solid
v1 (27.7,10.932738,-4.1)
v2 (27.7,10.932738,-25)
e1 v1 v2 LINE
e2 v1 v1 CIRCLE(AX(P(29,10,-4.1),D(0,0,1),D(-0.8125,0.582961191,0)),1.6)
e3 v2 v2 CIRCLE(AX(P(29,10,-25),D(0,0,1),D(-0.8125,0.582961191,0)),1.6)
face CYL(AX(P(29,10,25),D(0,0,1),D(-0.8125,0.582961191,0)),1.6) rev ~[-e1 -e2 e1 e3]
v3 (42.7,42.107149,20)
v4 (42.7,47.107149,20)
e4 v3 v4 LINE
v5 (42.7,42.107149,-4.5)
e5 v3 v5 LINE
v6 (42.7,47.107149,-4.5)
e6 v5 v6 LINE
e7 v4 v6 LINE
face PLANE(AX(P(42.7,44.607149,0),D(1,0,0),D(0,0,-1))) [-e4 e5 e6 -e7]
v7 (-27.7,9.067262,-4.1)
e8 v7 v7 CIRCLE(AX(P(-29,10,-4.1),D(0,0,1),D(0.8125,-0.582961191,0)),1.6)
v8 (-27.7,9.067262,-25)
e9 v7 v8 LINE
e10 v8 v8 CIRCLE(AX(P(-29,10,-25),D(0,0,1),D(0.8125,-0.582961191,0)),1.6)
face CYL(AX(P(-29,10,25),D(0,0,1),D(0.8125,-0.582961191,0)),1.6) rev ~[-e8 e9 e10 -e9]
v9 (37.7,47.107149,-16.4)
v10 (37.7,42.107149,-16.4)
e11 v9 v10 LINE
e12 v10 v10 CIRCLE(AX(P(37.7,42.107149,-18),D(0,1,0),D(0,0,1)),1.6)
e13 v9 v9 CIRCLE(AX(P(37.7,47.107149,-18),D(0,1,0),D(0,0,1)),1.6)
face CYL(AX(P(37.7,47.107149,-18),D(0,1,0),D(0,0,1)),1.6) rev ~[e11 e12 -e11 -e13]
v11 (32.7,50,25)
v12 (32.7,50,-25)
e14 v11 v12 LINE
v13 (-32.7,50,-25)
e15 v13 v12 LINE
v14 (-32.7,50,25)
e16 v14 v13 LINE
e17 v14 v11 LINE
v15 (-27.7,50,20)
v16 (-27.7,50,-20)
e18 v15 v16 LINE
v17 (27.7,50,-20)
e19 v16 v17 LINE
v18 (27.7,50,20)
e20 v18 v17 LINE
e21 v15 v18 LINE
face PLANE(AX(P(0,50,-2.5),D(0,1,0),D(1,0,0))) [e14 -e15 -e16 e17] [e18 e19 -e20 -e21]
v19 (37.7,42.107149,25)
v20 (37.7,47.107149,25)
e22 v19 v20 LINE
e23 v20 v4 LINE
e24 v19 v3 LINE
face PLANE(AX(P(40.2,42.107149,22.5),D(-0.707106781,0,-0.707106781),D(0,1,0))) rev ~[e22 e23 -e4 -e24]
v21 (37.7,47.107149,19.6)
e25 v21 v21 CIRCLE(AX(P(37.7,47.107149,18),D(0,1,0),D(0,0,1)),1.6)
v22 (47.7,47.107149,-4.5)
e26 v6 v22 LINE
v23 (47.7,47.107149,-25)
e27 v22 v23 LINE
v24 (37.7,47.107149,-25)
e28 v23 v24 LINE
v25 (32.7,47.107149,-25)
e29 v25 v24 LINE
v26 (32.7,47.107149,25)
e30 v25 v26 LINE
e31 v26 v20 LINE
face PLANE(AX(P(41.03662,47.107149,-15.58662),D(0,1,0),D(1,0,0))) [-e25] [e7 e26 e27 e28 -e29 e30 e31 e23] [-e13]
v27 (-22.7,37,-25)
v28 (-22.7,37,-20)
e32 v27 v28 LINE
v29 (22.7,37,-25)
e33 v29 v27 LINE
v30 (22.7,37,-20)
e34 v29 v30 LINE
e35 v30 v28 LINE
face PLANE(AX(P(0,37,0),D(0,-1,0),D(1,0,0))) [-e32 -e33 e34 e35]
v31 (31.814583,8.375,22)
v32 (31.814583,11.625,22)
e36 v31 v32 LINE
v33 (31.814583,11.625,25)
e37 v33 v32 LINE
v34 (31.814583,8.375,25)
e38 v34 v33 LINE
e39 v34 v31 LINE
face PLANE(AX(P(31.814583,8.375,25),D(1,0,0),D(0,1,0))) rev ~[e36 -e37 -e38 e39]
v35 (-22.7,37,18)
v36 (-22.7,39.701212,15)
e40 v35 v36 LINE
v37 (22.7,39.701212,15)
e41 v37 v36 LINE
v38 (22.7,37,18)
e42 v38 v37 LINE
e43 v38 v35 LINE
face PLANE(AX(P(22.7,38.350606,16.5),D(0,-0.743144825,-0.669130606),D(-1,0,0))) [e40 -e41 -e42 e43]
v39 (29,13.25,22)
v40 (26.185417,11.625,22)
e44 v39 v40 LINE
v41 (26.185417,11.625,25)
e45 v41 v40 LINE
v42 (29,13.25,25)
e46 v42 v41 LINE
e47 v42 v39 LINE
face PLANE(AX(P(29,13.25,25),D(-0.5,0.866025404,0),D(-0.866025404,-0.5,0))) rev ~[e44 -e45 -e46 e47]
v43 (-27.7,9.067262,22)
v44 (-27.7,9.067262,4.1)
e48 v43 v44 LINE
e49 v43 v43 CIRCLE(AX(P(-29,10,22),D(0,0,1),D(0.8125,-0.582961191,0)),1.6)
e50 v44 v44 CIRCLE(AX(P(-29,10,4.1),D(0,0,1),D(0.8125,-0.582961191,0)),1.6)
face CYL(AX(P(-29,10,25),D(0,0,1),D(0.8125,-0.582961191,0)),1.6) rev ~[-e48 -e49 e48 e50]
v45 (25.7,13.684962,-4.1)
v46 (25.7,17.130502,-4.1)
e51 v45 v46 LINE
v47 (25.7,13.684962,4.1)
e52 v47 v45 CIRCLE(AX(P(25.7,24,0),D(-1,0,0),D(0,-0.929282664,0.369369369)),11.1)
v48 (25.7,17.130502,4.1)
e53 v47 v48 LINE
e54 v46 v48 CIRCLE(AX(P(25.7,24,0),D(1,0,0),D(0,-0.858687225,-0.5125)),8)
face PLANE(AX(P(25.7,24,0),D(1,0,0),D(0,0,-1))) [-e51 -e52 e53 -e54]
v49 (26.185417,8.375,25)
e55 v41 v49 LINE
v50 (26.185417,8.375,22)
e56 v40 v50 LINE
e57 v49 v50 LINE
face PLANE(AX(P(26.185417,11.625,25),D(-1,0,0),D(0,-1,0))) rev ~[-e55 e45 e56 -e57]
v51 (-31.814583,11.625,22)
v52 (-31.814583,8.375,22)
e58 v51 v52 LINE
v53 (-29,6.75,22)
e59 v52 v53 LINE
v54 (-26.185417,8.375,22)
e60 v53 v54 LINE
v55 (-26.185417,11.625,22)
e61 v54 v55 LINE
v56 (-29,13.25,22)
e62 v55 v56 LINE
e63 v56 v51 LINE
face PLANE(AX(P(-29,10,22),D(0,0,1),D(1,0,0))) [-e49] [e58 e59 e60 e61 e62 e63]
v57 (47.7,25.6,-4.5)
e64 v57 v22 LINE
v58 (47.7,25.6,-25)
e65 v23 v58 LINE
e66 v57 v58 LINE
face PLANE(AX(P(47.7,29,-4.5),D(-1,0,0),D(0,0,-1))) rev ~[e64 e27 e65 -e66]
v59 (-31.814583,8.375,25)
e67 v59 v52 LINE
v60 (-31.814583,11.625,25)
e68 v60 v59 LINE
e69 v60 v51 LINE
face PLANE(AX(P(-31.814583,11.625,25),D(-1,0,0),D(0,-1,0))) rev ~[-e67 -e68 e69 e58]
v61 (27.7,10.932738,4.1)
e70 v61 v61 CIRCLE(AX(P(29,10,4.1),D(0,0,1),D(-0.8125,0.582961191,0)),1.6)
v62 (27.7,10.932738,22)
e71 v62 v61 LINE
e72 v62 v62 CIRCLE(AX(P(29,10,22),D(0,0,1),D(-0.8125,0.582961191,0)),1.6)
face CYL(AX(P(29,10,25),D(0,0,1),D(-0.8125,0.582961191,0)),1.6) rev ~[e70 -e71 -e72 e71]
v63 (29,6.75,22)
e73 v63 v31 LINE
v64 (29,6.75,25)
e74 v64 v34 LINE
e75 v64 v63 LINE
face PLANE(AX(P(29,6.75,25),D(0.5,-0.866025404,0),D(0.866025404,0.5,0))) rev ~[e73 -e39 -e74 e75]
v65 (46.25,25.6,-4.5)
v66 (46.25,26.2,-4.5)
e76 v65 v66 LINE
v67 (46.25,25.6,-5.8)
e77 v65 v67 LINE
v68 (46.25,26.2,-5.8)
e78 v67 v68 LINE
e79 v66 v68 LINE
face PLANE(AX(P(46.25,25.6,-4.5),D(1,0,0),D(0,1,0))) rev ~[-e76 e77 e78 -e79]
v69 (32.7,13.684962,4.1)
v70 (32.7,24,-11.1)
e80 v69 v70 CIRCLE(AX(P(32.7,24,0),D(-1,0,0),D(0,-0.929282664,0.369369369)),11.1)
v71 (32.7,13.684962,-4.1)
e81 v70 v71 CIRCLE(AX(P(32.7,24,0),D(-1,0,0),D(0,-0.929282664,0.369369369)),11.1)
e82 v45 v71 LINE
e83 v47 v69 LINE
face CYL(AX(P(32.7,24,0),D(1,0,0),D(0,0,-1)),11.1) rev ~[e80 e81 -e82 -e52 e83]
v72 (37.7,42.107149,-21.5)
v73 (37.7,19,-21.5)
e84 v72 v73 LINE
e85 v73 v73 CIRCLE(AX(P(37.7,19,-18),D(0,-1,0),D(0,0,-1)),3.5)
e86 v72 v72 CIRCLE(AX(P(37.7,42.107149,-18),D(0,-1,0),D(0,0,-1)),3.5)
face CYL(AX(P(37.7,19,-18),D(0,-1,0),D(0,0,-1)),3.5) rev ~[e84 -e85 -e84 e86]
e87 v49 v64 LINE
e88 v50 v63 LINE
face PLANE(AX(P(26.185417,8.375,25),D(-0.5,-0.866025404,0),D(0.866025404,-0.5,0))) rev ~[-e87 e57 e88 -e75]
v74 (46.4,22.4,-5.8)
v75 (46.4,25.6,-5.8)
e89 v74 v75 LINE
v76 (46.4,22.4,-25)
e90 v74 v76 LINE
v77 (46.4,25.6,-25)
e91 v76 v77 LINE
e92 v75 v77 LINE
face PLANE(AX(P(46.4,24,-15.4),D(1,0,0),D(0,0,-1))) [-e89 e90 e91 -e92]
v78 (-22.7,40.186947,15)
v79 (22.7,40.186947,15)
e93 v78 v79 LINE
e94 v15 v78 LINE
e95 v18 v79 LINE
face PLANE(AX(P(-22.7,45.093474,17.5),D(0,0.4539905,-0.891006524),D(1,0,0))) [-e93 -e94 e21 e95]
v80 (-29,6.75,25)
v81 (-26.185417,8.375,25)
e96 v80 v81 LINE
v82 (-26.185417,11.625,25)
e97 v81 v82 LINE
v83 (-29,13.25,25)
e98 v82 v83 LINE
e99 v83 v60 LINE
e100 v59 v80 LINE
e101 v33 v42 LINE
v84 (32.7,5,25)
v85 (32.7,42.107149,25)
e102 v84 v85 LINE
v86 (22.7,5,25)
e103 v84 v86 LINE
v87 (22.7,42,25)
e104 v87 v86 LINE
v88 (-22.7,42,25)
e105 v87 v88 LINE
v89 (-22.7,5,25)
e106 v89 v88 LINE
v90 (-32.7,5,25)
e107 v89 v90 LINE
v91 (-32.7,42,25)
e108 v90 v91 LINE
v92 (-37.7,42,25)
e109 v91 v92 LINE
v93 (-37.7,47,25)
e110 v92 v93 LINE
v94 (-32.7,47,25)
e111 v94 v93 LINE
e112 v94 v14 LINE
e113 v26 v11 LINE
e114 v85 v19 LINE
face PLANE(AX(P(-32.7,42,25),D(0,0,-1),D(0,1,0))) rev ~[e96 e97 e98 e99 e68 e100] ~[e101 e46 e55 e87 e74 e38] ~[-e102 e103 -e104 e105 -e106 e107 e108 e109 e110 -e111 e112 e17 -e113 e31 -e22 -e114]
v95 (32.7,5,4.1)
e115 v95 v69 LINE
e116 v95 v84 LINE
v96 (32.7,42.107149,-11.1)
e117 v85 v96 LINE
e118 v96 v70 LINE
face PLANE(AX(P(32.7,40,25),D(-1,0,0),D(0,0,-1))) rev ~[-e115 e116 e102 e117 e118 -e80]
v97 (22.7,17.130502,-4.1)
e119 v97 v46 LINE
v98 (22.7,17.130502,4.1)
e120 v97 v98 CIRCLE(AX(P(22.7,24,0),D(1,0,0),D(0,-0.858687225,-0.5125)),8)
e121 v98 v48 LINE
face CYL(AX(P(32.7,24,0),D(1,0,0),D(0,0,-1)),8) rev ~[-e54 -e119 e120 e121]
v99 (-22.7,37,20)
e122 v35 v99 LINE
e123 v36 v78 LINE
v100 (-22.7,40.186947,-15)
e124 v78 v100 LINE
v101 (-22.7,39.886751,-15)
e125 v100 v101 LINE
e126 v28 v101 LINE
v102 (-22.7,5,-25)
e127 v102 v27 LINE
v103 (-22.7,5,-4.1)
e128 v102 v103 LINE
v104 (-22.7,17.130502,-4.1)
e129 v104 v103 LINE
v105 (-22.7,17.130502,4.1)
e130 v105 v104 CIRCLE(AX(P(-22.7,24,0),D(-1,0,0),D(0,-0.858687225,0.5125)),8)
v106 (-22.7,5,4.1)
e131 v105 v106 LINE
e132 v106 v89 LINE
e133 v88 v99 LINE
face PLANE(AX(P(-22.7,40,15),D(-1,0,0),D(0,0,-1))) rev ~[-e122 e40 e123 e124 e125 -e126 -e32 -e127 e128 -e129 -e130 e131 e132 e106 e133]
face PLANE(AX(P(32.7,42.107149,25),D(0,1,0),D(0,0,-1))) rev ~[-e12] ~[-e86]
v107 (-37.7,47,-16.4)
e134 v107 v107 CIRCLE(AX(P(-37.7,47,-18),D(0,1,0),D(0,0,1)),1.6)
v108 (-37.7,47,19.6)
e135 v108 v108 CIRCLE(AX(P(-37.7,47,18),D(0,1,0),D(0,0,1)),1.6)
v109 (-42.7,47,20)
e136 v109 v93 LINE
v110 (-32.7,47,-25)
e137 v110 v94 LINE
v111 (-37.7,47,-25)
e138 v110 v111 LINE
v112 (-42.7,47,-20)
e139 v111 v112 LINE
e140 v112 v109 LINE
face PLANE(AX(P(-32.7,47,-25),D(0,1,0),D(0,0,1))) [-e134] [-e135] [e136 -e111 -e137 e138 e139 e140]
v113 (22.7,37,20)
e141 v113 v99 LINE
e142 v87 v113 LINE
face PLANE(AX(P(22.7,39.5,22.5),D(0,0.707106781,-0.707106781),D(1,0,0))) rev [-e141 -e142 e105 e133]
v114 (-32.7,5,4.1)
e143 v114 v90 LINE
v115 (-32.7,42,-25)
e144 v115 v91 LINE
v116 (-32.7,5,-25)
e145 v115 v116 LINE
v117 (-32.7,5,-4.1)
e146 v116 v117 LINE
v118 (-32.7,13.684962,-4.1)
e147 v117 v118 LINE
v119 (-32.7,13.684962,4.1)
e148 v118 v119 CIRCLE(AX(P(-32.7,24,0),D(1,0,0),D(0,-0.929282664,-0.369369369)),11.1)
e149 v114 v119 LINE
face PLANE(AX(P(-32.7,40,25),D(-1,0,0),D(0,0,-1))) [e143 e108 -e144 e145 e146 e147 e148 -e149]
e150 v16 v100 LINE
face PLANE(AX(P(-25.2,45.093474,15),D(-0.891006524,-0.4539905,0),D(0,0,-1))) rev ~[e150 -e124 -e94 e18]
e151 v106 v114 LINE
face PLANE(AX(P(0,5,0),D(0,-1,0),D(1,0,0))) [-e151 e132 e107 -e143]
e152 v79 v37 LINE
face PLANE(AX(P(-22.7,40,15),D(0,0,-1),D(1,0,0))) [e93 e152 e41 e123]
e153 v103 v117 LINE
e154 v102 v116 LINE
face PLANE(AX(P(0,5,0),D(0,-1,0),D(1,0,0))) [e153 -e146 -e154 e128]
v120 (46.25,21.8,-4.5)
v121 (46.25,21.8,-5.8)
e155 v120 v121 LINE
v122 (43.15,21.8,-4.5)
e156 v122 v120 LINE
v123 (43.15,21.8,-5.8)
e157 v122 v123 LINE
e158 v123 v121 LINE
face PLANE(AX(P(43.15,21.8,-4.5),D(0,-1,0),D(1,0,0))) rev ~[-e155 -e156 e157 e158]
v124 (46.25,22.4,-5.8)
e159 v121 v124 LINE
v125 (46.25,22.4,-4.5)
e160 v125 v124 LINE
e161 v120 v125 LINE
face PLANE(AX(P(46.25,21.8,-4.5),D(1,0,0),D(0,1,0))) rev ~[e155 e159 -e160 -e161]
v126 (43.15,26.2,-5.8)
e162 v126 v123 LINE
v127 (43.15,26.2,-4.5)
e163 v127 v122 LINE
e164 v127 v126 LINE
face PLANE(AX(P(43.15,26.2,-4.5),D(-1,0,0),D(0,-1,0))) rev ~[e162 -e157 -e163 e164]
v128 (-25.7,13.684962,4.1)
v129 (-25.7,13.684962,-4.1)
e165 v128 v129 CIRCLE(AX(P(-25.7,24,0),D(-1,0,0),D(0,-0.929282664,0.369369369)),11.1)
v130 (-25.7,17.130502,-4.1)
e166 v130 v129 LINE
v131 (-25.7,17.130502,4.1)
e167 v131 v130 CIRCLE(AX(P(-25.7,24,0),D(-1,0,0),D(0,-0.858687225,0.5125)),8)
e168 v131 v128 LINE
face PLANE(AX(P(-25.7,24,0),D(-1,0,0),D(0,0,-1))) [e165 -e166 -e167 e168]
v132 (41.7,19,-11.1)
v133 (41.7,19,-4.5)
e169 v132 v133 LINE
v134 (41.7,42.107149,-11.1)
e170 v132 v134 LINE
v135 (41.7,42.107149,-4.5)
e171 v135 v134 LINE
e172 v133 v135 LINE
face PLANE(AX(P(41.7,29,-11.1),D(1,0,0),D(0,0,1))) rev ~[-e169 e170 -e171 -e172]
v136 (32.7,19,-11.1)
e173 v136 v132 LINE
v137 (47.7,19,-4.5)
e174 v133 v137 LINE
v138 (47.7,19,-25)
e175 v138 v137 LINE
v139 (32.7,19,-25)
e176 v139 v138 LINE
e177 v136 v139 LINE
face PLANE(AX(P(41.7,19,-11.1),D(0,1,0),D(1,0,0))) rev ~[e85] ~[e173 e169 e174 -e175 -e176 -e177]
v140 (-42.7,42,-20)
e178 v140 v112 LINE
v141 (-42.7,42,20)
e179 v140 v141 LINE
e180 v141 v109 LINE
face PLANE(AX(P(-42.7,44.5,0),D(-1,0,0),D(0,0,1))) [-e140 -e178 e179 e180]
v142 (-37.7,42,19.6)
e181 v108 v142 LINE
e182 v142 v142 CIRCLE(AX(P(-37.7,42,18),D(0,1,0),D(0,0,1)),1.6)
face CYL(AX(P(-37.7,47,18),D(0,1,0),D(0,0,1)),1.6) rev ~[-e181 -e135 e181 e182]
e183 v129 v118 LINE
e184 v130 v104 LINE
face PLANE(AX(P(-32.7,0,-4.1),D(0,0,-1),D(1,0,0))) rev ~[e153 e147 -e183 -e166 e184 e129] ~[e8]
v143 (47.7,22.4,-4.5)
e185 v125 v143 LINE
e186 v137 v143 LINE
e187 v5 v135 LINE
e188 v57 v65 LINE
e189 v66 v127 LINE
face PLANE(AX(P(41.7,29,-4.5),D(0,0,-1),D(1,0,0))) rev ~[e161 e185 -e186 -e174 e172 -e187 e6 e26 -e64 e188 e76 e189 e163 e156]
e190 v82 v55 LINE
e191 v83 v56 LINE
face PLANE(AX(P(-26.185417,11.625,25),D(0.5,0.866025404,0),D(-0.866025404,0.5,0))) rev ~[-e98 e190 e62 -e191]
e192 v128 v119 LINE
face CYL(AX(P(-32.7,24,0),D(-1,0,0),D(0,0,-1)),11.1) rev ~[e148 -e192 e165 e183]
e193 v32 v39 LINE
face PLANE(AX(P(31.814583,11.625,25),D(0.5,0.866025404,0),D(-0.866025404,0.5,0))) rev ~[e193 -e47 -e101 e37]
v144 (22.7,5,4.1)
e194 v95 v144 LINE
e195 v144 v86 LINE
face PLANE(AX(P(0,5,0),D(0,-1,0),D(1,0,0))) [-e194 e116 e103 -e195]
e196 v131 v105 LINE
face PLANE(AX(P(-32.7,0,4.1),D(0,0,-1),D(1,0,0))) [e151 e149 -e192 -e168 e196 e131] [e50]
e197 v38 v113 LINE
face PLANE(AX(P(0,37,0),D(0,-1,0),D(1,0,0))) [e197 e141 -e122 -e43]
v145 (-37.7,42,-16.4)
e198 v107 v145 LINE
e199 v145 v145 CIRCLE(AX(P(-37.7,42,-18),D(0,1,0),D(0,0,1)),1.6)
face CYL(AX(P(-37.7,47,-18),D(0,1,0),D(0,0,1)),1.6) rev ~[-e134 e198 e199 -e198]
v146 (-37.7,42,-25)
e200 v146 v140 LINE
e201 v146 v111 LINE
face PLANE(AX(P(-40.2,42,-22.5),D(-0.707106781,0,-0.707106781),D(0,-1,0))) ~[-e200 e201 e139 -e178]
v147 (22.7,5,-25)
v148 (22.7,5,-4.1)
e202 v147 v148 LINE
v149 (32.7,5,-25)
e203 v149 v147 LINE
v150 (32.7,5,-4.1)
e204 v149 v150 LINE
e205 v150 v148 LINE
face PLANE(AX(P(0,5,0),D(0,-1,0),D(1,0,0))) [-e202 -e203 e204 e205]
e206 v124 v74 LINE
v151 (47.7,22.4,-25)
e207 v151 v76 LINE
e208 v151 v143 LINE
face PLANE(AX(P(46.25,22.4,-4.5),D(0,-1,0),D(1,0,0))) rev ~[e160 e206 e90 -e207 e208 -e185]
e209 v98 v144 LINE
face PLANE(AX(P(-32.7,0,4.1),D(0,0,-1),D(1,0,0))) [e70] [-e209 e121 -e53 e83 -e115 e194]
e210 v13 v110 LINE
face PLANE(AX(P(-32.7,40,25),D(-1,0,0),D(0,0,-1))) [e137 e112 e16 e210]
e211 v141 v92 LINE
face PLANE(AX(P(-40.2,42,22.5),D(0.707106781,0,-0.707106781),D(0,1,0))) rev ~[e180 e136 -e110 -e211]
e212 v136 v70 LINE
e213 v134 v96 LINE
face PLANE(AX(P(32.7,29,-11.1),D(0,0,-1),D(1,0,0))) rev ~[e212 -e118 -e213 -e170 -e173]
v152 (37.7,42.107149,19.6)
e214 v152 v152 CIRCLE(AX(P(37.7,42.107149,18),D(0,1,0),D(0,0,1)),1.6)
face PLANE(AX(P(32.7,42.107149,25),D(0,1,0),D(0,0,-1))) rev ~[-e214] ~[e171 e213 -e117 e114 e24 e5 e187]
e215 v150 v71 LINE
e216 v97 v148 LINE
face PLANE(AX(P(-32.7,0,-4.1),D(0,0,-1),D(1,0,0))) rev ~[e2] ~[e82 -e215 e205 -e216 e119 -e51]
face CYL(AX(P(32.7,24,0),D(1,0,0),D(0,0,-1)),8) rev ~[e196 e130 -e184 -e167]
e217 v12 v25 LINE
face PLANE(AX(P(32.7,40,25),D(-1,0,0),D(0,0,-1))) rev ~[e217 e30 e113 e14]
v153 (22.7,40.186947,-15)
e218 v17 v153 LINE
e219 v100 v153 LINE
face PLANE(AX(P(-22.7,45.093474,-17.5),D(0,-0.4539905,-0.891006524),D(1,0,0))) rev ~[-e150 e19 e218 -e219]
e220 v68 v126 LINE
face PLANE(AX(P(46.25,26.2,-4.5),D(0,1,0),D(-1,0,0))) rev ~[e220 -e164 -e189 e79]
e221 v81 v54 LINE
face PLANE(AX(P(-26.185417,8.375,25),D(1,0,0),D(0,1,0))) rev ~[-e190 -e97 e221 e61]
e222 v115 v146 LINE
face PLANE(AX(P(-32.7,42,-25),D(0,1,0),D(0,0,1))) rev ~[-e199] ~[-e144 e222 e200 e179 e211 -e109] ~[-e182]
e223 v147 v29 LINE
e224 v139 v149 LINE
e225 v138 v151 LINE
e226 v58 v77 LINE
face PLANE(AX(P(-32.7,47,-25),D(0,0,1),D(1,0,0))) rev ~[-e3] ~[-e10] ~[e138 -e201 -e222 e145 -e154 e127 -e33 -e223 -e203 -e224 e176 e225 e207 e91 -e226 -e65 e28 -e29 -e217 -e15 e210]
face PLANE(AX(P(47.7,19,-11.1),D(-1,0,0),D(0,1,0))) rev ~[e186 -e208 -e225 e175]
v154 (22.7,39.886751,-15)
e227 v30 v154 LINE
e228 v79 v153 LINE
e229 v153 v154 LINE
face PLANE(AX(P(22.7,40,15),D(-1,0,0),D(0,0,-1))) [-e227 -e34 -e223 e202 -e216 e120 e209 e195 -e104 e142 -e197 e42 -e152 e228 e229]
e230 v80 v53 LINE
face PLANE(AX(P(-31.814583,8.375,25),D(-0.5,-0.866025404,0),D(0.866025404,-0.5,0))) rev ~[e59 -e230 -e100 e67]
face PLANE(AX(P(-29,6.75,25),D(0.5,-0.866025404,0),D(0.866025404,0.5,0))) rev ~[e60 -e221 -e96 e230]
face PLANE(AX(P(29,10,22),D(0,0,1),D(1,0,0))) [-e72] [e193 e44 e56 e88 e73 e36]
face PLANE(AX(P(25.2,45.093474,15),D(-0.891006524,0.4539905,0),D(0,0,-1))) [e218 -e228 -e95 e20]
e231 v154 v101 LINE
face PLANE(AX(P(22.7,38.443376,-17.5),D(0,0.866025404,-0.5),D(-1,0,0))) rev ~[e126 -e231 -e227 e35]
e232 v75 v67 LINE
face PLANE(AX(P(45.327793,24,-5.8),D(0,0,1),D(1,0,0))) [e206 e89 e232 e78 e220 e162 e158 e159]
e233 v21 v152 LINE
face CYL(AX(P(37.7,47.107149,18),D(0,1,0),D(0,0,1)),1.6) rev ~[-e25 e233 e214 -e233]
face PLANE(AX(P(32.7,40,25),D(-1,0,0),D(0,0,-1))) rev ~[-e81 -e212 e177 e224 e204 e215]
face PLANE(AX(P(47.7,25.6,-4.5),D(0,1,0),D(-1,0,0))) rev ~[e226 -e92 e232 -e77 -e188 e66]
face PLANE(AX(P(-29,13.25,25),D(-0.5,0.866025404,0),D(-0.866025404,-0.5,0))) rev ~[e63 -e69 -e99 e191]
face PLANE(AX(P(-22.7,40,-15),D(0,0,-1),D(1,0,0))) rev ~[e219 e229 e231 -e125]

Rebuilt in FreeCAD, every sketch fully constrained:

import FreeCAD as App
import Part
import Sketcher
Q = App.Units.Quantity


def edges_at(feature, points):
    """Names of the edges that pass closest to the given points."""
    edges = feature.Shape.Edges
    near = lambda p: min(range(len(edges)), key=lambda i: edges[i].distToShape(Part.Vertex(*p))[0])
    return sorted({f"Edge{near(p) + 1}" for p in points})


def add_polygon(sketch, points):
    """Adds a closed chain of lines whose ends are joined by coincident constraints."""
    first, n = sketch.GeometryCount, len(points)
    for a, b in zip(points, points[1:] + points[:1]):
        sketch.addGeometry(Part.LineSegment(App.Vector(*a, 0), App.Vector(*b, 0)), False)
    for i in range(n):
        sketch.addConstraint(Sketcher.Constraint("Coincident", first + i, 2, first + (i + 1) % n, 1))

doc = App.newDocument("Part")
params = doc.addObject("Spreadsheet::Sheet", "Params")
for row, (alias, value) in enumerate([
    ("sketch1_height", "60 mm"),
    ("sketch1_height2", "30 mm"),
    ("sketch1_width", "65.4 mm"),
    ("sketch1_width2", "45.4 mm"),
    ("pad1_length", "40 mm"),
    ("sketch2_diameter", "16 mm"),
    ("sketch3_height", "52 mm"),
    ("sketch3_width", "45.4 mm"),
    ("pocket2_length", "37 mm"),
    ("chamfer_size", "5 mm"),
    ("chamfer_size2", "2.886751 mm"),
    ("sketch4_height", "5 mm"),
    ("sketch4_width", "65.4 mm"),
    ("chamfer2_size", "3 mm"),
    ("chamfer2_size2", "2.701212 mm"),
    ("sketch5_height", "55 mm"),
    ("sketch5_height2", "30 mm"),
    ("sketch5_width", "65.4 mm"),
    ("sketch5_width2", "45.4 mm"),
    ("pad2_length", "10 mm"),
    ("chamfer3_size", "5 mm"),
    ("chamfer3_size2", "9.813053 mm"),
    ("sketch6_diameter", "22.2 mm"),
    ("pocket4_length", "7 mm"),
    ("sketch7_diameter", "22.2 mm"),
    ("pocket5_length", "7 mm"),
    ("sketch8_width", "65.4 mm"),
    ("sketch8_height", "8.2 mm"),
    ("pocket6_length", "20 mm"),
    ("sketch9_height", "5 mm"),
    ("sketch9_width", "65.4 mm"),
    ("pocket7_length", "3 mm"),
    ("chamfer4_size", "5 mm"),
    ("sketch10_width", "5 mm"),
    ("sketch10_height", "50 mm"),
    ("pad3_length", "10 mm"),
    ("sketch11_width", "5 mm"),
    ("sketch11_height", "50 mm"),
    ("pad4_length", "10 mm"),
    ("chamfer5_size", "5 mm"),
    ("sketch12_diameter", "3.2 mm"),
    ("sketch13_width", "10 mm"),
    ("sketch13_height", "13.9 mm"),
    ("pad5_length", "15 mm"),
    ("sketch14_diameter", "3.2 mm"),
    ("sketch15_diameter", "7 mm"),
    ("pocket10_length", "10 mm"),
    ("sketch16_width", "6 mm"),
    ("sketch16_height", "10 mm"),
    ("pad6_length", "6.6 mm"),
    ("sketch17_width", "3.1 mm"),
    ("sketch17_height", "0.6 mm"),
    ("sketch17_height2", "3.2 mm"),
    ("sketch17_width2", "1.45 mm"),
    ("pocket11_length", "1.3 mm"),
    ("sketch18_width", "3.2 mm"),
    ("sketch18_height", "19.2 mm"),
    ("pocket12_length", "1.3 mm"),
    ("sketch19_diameter", "3.2 mm"),
    ("sketch20_height", "3.25 mm"),
    ("pocket14_length", "3 mm"),
    ("sketch21_diameter", "6.3 mm"),
    ("pocket15_length", "5 mm"),
    ("pocket16_length", "5 mm"),
    ("chamfer6_size", "5 mm"),
    ("sketch23_width", "55.4 mm"),
    ("sketch23_width2", "65.4 mm"),
    ("sketch24_diameter", "7 mm"),
    ("sketch24_width", "9 mm"),
    ("sketch24_width2", "6 mm"),
    ("sketch24_height", "6.6 mm"),
    ("sketch24_height2", "20.5 mm"),
    ("pad7_length", "18.107149 mm"),
], start=1):
    params.set(f"A{row}", alias)
    params.set(f"B{row}", "=" + value)
    params.setAlias(f"B{row}", alias)

body = doc.addObject("PartDesign::Body", "Body")

# Sketch on XZ plane
sketch1 = body.newObject("Sketcher::SketchObject", "Sketch")
sketch1.AttachmentSupport = (doc.getObject("XZ_Plane"), [""])
sketch1.MapMode = "FlatFace"
add_polygon(sketch1, [(-33, -30), (-33, 30), (33, 30), (33, -30)])  # lines 0-3
add_polygon(sketch1, [(23, 15), (-23, 15), (-23, -15), (23, -15)])  # lines 4-7
sketch1.addConstraint(Sketcher.Constraint("Vertical", 0))
sketch1.addConstraint(Sketcher.Constraint("Horizontal", 1))
sketch1.addConstraint(Sketcher.Constraint("Vertical", 2))
sketch1.addConstraint(Sketcher.Constraint("Horizontal", 3))
sketch1.addConstraint(Sketcher.Constraint("Horizontal", 4))
sketch1.addConstraint(Sketcher.Constraint("Vertical", 5))
sketch1.addConstraint(Sketcher.Constraint("Horizontal", 6))
sketch1.addConstraint(Sketcher.Constraint("Vertical", 7))
sketch1.addConstraint(Sketcher.Constraint("Symmetric", 0, 2, 2, 2, -1, 1))
sketch1.addConstraint(Sketcher.Constraint("Symmetric", 4, 2, 6, 2, -1, 1))
sketch1.addConstraint(Sketcher.Constraint("DistanceY", 0, 1, 0, 2, 60.0))
sketch1.addConstraint(Sketcher.Constraint("DistanceY", 5, 2, 5, 1, 30.0))
sketch1.addConstraint(Sketcher.Constraint("DistanceX", 1, 1, 1, 2, 65.4))
sketch1.addConstraint(Sketcher.Constraint("DistanceX", 4, 2, 4, 1, 45.4))
sketch1.setExpression("Constraints[18]", "Params.sketch1_height")
sketch1.setExpression("Constraints[19]", "Params.sketch1_height2")
sketch1.setExpression("Constraints[20]", "Params.sketch1_width")
sketch1.setExpression("Constraints[21]", "Params.sketch1_width2")
pad1 = body.newObject("PartDesign::Pad", "Pad")
pad1.Profile = sketch1
pad1.setExpression("Length", "Params.pad1_length")
pad1.Reversed = True

# Sketch on YZ plane
sketch2 = body.newObject("Sketcher::SketchObject", "Sketch001")
sketch2.AttachmentSupport = (doc.getObject("YZ_Plane"), [""])
sketch2.MapMode = "FlatFace"
sketch2.AttachmentOffset = App.Placement(App.Vector(0, 0, 32.7), App.Rotation())
sketch2.addGeometry(Part.Circle(App.Vector(24, 0, 0), App.Vector(0, 0, 1), 8), False)
sketch2.addConstraint(Sketcher.Constraint("PointOnObject", 0, 3, -1))
sketch2.addConstraint(Sketcher.Constraint("Diameter", 0, 16.0))
sketch2.addConstraint(Sketcher.Constraint("DistanceX", -1, 1, 0, 3, 24.0))
sketch2.setExpression("Constraints[1]", "Params.sketch2_diameter")
pocket1 = body.newObject("PartDesign::Pocket", "Pocket")
pocket1.Profile = sketch2
pocket1.Type = "ThroughAll"

# Sketch on XZ plane
sketch3 = body.newObject("Sketcher::SketchObject", "Sketch002")
sketch3.AttachmentSupport = (doc.getObject("XZ_Plane"), [""])
sketch3.MapMode = "FlatFace"
add_polygon(sketch3, [(-23, 26), (-23, -26), (23, -26), (23, 26)])  # lines 0-3
sketch3.addConstraint(Sketcher.Constraint("Vertical", 0))
sketch3.addConstraint(Sketcher.Constraint("Horizontal", 1))
sketch3.addConstraint(Sketcher.Constraint("Vertical", 2))
sketch3.addConstraint(Sketcher.Constraint("Horizontal", 3))
sketch3.addConstraint(Sketcher.Constraint("Symmetric", 0, 2, 2, 2, -1, 1))
sketch3.addConstraint(Sketcher.Constraint("DistanceY", 0, 2, 0, 1, 52.0))
sketch3.addConstraint(Sketcher.Constraint("DistanceX", 1, 1, 1, 2, 45.4))
sketch3.setExpression("Constraints[9]", "Params.sketch3_height")
sketch3.setExpression("Constraints[10]", "Params.sketch3_width")
pocket2 = body.newObject("PartDesign::Pocket", "Pocket001")
pocket2.Profile = sketch3
pocket2.setExpression("Length", "Params.pocket2_length")
doc.recompute()

chamfer = body.newObject("PartDesign::Chamfer", "Chamfer")
chamfer.Base = (pocket2, edges_at(pocket2, [(0, 37, -15)]))
chamfer.ChamferType = "Two distances"
chamfer.setExpression("Size", "Params.chamfer_size")
chamfer.setExpression("Size2", "Params.chamfer_size2")
chamfer.FlipDirection = True

# Sketch on XZ plane
sketch4 = body.newObject("Sketcher::SketchObject", "Sketch003")
sketch4.AttachmentSupport = (doc.getObject("XZ_Plane"), [""])
sketch4.MapMode = "FlatFace"
sketch4.AttachmentOffset = App.Placement(App.Vector(0, 0, -40), App.Rotation())
add_polygon(sketch4, [(-33, 25), (-33, 30), (33, 30), (33, 25)])  # lines 0-3
sketch4.addConstraint(Sketcher.Constraint("Vertical", 0))
sketch4.addConstraint(Sketcher.Constraint("Horizontal", 1))
sketch4.addConstraint(Sketcher.Constraint("Vertical", 2))
sketch4.addConstraint(Sketcher.Constraint("Horizontal", 3))
sketch4.addConstraint(Sketcher.Constraint("DistanceY", 0, 1, 0, 2, 5.0))
sketch4.addConstraint(Sketcher.Constraint("DistanceX", 1, 1, 1, 2, 65.4))
sketch4.addConstraint(Sketcher.Constraint("DistanceY", -1, 1, 0, 2, 30.0))
sketch4.addConstraint(Sketcher.Constraint("DistanceX", 0, 2, -1, 1, 32.7))
sketch4.setExpression("Constraints[8]", "Params.sketch4_height")
sketch4.setExpression("Constraints[9]", "Params.sketch4_width")
pocket3 = body.newObject("PartDesign::Pocket", "Pocket002")
pocket3.Profile = sketch4
pocket3.Type = "ThroughAll"
pocket3.Reversed = True
doc.recompute()

chamfer2 = body.newObject("PartDesign::Chamfer", "Chamfer001")
chamfer2.Base = (pocket3, edges_at(pocket3, [(0, 37, 15)]))
chamfer2.ChamferType = "Two distances"
chamfer2.setExpression("Size", "Params.chamfer2_size")
chamfer2.setExpression("Size2", "Params.chamfer2_size2")
chamfer2.FlipDirection = True

# Sketch on XZ plane
sketch5 = body.newObject("Sketcher::SketchObject", "Sketch004")
sketch5.AttachmentSupport = (doc.getObject("XZ_Plane"), [""])
sketch5.MapMode = "FlatFace"
sketch5.AttachmentOffset = App.Placement(App.Vector(0, 0, -40), App.Rotation())
add_polygon(sketch5, [(-33, -30), (-33, 25), (33, 25), (33, -30)])  # lines 0-3
add_polygon(sketch5, [(23, 15), (-23, 15), (-23, -15), (23, -15)])  # lines 4-7
sketch5.addConstraint(Sketcher.Constraint("Vertical", 0))
sketch5.addConstraint(Sketcher.Constraint("Horizontal", 1))
sketch5.addConstraint(Sketcher.Constraint("Vertical", 2))
sketch5.addConstraint(Sketcher.Constraint("Horizontal", 3))
sketch5.addConstraint(Sketcher.Constraint("Horizontal", 4))
sketch5.addConstraint(Sketcher.Constraint("Vertical", 5))
sketch5.addConstraint(Sketcher.Constraint("Horizontal", 6))
sketch5.addConstraint(Sketcher.Constraint("Vertical", 7))
sketch5.addConstraint(Sketcher.Constraint("Symmetric", 4, 2, 6, 2, -1, 1))
sketch5.addConstraint(Sketcher.Constraint("DistanceY", 0, 1, 0, 2, 55.0))
sketch5.addConstraint(Sketcher.Constraint("DistanceY", 5, 2, 5, 1, 30.0))
sketch5.addConstraint(Sketcher.Constraint("DistanceX", 1, 1, 1, 2, 65.4))
sketch5.addConstraint(Sketcher.Constraint("DistanceX", 4, 2, 4, 1, 45.4))
sketch5.addConstraint(Sketcher.Constraint("DistanceY", -1, 1, 0, 2, 25.0))
sketch5.addConstraint(Sketcher.Constraint("DistanceX", 0, 2, 4, 2, 10.0))
sketch5.setExpression("Constraints[17]", "Params.sketch5_height")
sketch5.setExpression("Constraints[18]", "Params.sketch5_height2")
sketch5.setExpression("Constraints[19]", "Params.sketch5_width")
sketch5.setExpression("Constraints[20]", "Params.sketch5_width2")
pad2 = body.newObject("PartDesign::Pad", "Pad001")
pad2.Profile = sketch5
pad2.setExpression("Length", "Params.pad2_length")
pad2.Reversed = True
doc.recompute()

chamfer3 = body.newObject("PartDesign::Chamfer", "Chamfer002")
chamfer3.Base = (pad2, edges_at(pad2, [
    (-22.7, 50, 0),
    (0, 50, 15),
    (22.7, 50, 0),
    (0, 50, -15),
]))
chamfer3.ChamferType = "Two distances"
chamfer3.setExpression("Size", "Params.chamfer3_size")
chamfer3.setExpression("Size2", "Params.chamfer3_size2")

# Sketch on YZ plane
sketch6 = body.newObject("Sketcher::SketchObject", "Sketch005")
sketch6.AttachmentSupport = (doc.getObject("YZ_Plane"), [""])
sketch6.MapMode = "FlatFace"
sketch6.AttachmentOffset = App.Placement(App.Vector(0, 0, 32.7), App.Rotation())
sketch6.addGeometry(Part.Circle(App.Vector(24, 0, 0), App.Vector(0, 0, 1), 11), False)
sketch6.addConstraint(Sketcher.Constraint("PointOnObject", 0, 3, -1))
sketch6.addConstraint(Sketcher.Constraint("Diameter", 0, 22.2))
sketch6.addConstraint(Sketcher.Constraint("DistanceX", -1, 1, 0, 3, 24.0))
sketch6.setExpression("Constraints[1]", "Params.sketch6_diameter")
pocket4 = body.newObject("PartDesign::Pocket", "Pocket003")
pocket4.Profile = sketch6
pocket4.setExpression("Length", "Params.pocket4_length")

# Sketch on YZ plane
sketch7 = body.newObject("Sketcher::SketchObject", "Sketch006")
sketch7.AttachmentSupport = (doc.getObject("YZ_Plane"), [""])
sketch7.MapMode = "FlatFace"
sketch7.AttachmentOffset = App.Placement(App.Vector(0, 0, -32.7), App.Rotation())
sketch7.addGeometry(Part.Circle(App.Vector(24, 0, 0), App.Vector(0, 0, 1), 11), False)
sketch7.addConstraint(Sketcher.Constraint("PointOnObject", 0, 3, -1))
sketch7.addConstraint(Sketcher.Constraint("Diameter", 0, 22.2))
sketch7.addConstraint(Sketcher.Constraint("DistanceX", -1, 1, 0, 3, 24.0))
sketch7.setExpression("Constraints[1]", "Params.sketch7_diameter")
pocket5 = body.newObject("PartDesign::Pocket", "Pocket004")
pocket5.Profile = sketch7
pocket5.setExpression("Length", "Params.pocket5_length")
pocket5.Reversed = True

# Sketch on XZ plane
sketch8 = body.newObject("Sketcher::SketchObject", "Sketch007")
sketch8.AttachmentSupport = (doc.getObject("XZ_Plane"), [""])
sketch8.MapMode = "FlatFace"
add_polygon(sketch8, [(-33, 4), (-33, -4), (33, -4), (33, 4)])  # lines 0-3
sketch8.addConstraint(Sketcher.Constraint("Vertical", 0))
sketch8.addConstraint(Sketcher.Constraint("Horizontal", 1))
sketch8.addConstraint(Sketcher.Constraint("Vertical", 2))
sketch8.addConstraint(Sketcher.Constraint("Horizontal", 3))
sketch8.addConstraint(Sketcher.Constraint("Symmetric", 0, 2, 2, 2, -1, 1))
sketch8.addConstraint(Sketcher.Constraint("DistanceX", 1, 1, 1, 2, 65.4))
sketch8.addConstraint(Sketcher.Constraint("DistanceY", 0, 2, 0, 1, 8.2))
sketch8.setExpression("Constraints[9]", "Params.sketch8_width")
sketch8.setExpression("Constraints[10]", "Params.sketch8_height")
pocket6 = body.newObject("PartDesign::Pocket", "Pocket005")
pocket6.Profile = sketch8
pocket6.setExpression("Length", "Params.pocket6_length")

# Sketch on XZ plane
sketch9 = body.newObject("Sketcher::SketchObject", "Sketch008")
sketch9.AttachmentSupport = (doc.getObject("XZ_Plane"), [""])
sketch9.MapMode = "FlatFace"
sketch9.AttachmentOffset = App.Placement(App.Vector(0, 0, -50), App.Rotation())
add_polygon(sketch9, [(-33, -30), (-33, -25), (33, -25), (33, -30)])  # lines 0-3
sketch9.addConstraint(Sketcher.Constraint("Vertical", 0))
sketch9.addConstraint(Sketcher.Constraint("Horizontal", 1))
sketch9.addConstraint(Sketcher.Constraint("Vertical", 2))
sketch9.addConstraint(Sketcher.Constraint("Horizontal", 3))
sketch9.addConstraint(Sketcher.Constraint("DistanceY", 0, 1, 0, 2, 5.0))
sketch9.addConstraint(Sketcher.Constraint("DistanceX", 1, 1, 1, 2, 65.4))
sketch9.addConstraint(Sketcher.Constraint("DistanceY", 0, 2, -1, 1, 25.0))
sketch9.addConstraint(Sketcher.Constraint("DistanceX", 0, 2, -1, 1, 32.7))
sketch9.setExpression("Constraints[8]", "Params.sketch9_height")
sketch9.setExpression("Constraints[9]", "Params.sketch9_width")
pocket7 = body.newObject("PartDesign::Pocket", "Pocket006")
pocket7.Profile = sketch9
pocket7.setExpression("Length", "Params.pocket7_length")
pocket7.Reversed = True
doc.recompute()

chamfer4 = body.newObject("PartDesign::Chamfer", "Chamfer003")
chamfer4.Base = (pocket7, edges_at(pocket7, [(-32.7, 23.5, -30), (32.7, 23.5, -30)]))
chamfer4.setExpression("Size", "Params.chamfer4_size")

# Sketch on YZ plane
sketch10 = body.newObject("Sketcher::SketchObject", "Sketch009")
sketch10.AttachmentSupport = (doc.getObject("YZ_Plane"), [""])
sketch10.MapMode = "FlatFace"
sketch10.AttachmentOffset = App.Placement(App.Vector(0, 0, 32.7), App.Rotation())
add_polygon(sketch10, [(47, 25), (42, 25), (42, -25), (47, -25)])  # lines 0-3
sketch10.addConstraint(Sketcher.Constraint("Horizontal", 0))
sketch10.addConstraint(Sketcher.Constraint("Vertical", 1))
sketch10.addConstraint(Sketcher.Constraint("Horizontal", 2))
sketch10.addConstraint(Sketcher.Constraint("Vertical", 3))
sketch10.addConstraint(Sketcher.Constraint("DistanceX", 0, 2, 0, 1, 5.0))
sketch10.addConstraint(Sketcher.Constraint("DistanceY", 1, 2, 1, 1, 50.0))
sketch10.addConstraint(Sketcher.Constraint("DistanceY", -1, 1, 0, 2, 25.0))
sketch10.addConstraint(Sketcher.Constraint("DistanceX", -1, 1, 0, 2, 42.107149))
sketch10.setExpression("Constraints[8]", "Params.sketch10_width")
sketch10.setExpression("Constraints[9]", "Params.sketch10_height")
pad3 = body.newObject("PartDesign::Pad", "Pad002")
pad3.Profile = sketch10
pad3.setExpression("Length", "Params.pad3_length")

# Sketch on YZ plane
sketch11 = body.newObject("Sketcher::SketchObject", "Sketch010")
sketch11.AttachmentSupport = (doc.getObject("YZ_Plane"), [""])
sketch11.MapMode = "FlatFace"
sketch11.AttachmentOffset = App.Placement(App.Vector(0, 0, -32.7), App.Rotation())
add_polygon(sketch11, [(47, -25), (42, -25), (42, 25), (47, 25)])  # lines 0-3
sketch11.addConstraint(Sketcher.Constraint("Horizontal", 0))
sketch11.addConstraint(Sketcher.Constraint("Vertical", 1))
sketch11.addConstraint(Sketcher.Constraint("Horizontal", 2))
sketch11.addConstraint(Sketcher.Constraint("Vertical", 3))
sketch11.addConstraint(Sketcher.Constraint("DistanceX", 0, 2, 0, 1, 5.0))
sketch11.addConstraint(Sketcher.Constraint("DistanceY", 1, 1, 1, 2, 50.0))
sketch11.addConstraint(Sketcher.Constraint("DistanceX", -1, 1, 0, 2, 42.0))
sketch11.addConstraint(Sketcher.Constraint("DistanceY", 0, 2, -1, 1, 25.0))
sketch11.setExpression("Constraints[8]", "Params.sketch11_width")
sketch11.setExpression("Constraints[9]", "Params.sketch11_height")
pad4 = body.newObject("PartDesign::Pad", "Pad003")
pad4.Profile = sketch11
pad4.setExpression("Length", "Params.pad4_length")
pad4.Reversed = True
doc.recompute()

chamfer5 = body.newObject("PartDesign::Chamfer", "Chamfer004")
chamfer5.Base = (pad4, edges_at(pad4, [
    (42.7, 44.607, 25),
    (42.7, 44.607, -25),
    (-42.7, 44.5, -25),
    (-42.7, 44.5, 25),
]))
chamfer5.setExpression("Size", "Params.chamfer5_size")

# Sketch on XZ plane
sketch12 = body.newObject("Sketcher::SketchObject", "Sketch011")
sketch12.AttachmentSupport = (doc.getObject("XZ_Plane"), [""])
sketch12.MapMode = "FlatFace"
sketch12.AttachmentOffset = App.Placement(App.Vector(0, 0, -47), App.Rotation())
sketch12.addGeometry(Part.Circle(App.Vector(-37.7, -18, 0), App.Vector(0, 0, 1), 1.6), False)
sketch12.addGeometry(Part.Circle(App.Vector(-37.7, 18, 0), App.Vector(0, 0, 1), 1.6), False)
sketch12.addConstraint(Sketcher.Constraint("Equal", 0, 1))
sketch12.addConstraint(Sketcher.Constraint("Symmetric", 0, 3, 1, 3, -1))
sketch12.addConstraint(Sketcher.Constraint("Diameter", 0, 3.2))
sketch12.addConstraint(Sketcher.Constraint("DistanceY", 0, 3, -1, 1, 18.0))
sketch12.addConstraint(Sketcher.Constraint("DistanceX", 0, 3, -1, 1, 37.7))
sketch12.setExpression("Constraints[2]", "Params.sketch12_diameter")
pocket8 = body.newObject("PartDesign::Pocket", "Pocket007")
pocket8.Profile = sketch12
pocket8.Type = "ThroughAll"
pocket8.Reversed = True

# Sketch on YZ plane
sketch13 = body.newObject("Sketcher::SketchObject", "Sketch012")
sketch13.AttachmentSupport = (doc.getObject("YZ_Plane"), [""])
sketch13.MapMode = "FlatFace"
sketch13.AttachmentOffset = App.Placement(App.Vector(0, 0, 32.7), App.Rotation())
add_polygon(sketch13, [(29, -11), (19, -11), (19, -25), (29, -25)])  # lines 0-3
sketch13.addConstraint(Sketcher.Constraint("Horizontal", 0))
sketch13.addConstraint(Sketcher.Constraint("Vertical", 1))
sketch13.addConstraint(Sketcher.Constraint("Horizontal", 2))
sketch13.addConstraint(Sketcher.Constraint("Vertical", 3))
sketch13.addConstraint(Sketcher.Constraint("DistanceX", 0, 2, 0, 1, 10.0))
sketch13.addConstraint(Sketcher.Constraint("DistanceY", 1, 2, 1, 1, 13.9))
sketch13.addConstraint(Sketcher.Constraint("DistanceX", -1, 1, 0, 2, 19.0))
sketch13.addConstraint(Sketcher.Constraint("DistanceY", 1, 2, -1, 1, 25.0))
sketch13.setExpression("Constraints[8]", "Params.sketch13_width")
sketch13.setExpression("Constraints[9]", "Params.sketch13_height")
pad5 = body.newObject("PartDesign::Pad", "Pad004")
pad5.Profile = sketch13
pad5.setExpression("Length", "Params.pad5_length")

# Sketch on XZ plane
sketch14 = body.newObject("Sketcher::SketchObject", "Sketch013")
sketch14.AttachmentSupport = (doc.getObject("XZ_Plane"), [""])
sketch14.MapMode = "FlatFace"
sketch14.AttachmentOffset = App.Placement(App.Vector(0, 0, -47.107149), App.Rotation())
sketch14.addGeometry(Part.Circle(App.Vector(37.7, 18, 0), App.Vector(0, 0, 1), 1.6), False)
sketch14.addGeometry(Part.Circle(App.Vector(37.7, -18, 0), App.Vector(0, 0, 1), 1.6), False)
sketch14.addConstraint(Sketcher.Constraint("Equal", 0, 1))
sketch14.addConstraint(Sketcher.Constraint("Symmetric", 0, 3, 1, 3, -1))
sketch14.addConstraint(Sketcher.Constraint("Diameter", 0, 3.2))
sketch14.addConstraint(Sketcher.Constraint("DistanceY", -1, 1, 0, 3, 18.0))
sketch14.addConstraint(Sketcher.Constraint("DistanceX", -1, 1, 0, 3, 37.7))
sketch14.setExpression("Constraints[2]", "Params.sketch14_diameter")
pocket9 = body.newObject("PartDesign::Pocket", "Pocket008")
pocket9.Profile = sketch14
pocket9.Type = "ThroughAll"
pocket9.Reversed = True

# Sketch on XZ plane
sketch15 = body.newObject("Sketcher::SketchObject", "Sketch014")
sketch15.AttachmentSupport = (doc.getObject("XZ_Plane"), [""])
sketch15.MapMode = "FlatFace"
sketch15.AttachmentOffset = App.Placement(App.Vector(0, 0, -19), App.Rotation())
sketch15.addGeometry(Part.Circle(App.Vector(37.7, -18, 0), App.Vector(0, 0, 1), 3.5), False)
sketch15.addConstraint(Sketcher.Constraint("Diameter", 0, 7.0))
sketch15.addConstraint(Sketcher.Constraint("DistanceY", 0, 3, -1, 1, 18.0))
sketch15.addConstraint(Sketcher.Constraint("DistanceX", -1, 1, 0, 3, 37.7))
sketch15.setExpression("Constraints[0]", "Params.sketch15_diameter")
pocket10 = body.newObject("PartDesign::Pocket", "Pocket009")
pocket10.Profile = sketch15
pocket10.setExpression("Length", "Params.pocket10_length")

# Sketch on XY plane
sketch16 = body.newObject("Sketcher::SketchObject", "Sketch015")
sketch16.AttachmentSupport = (doc.getObject("XY_Plane"), [""])
sketch16.MapMode = "FlatFace"
sketch16.AttachmentOffset = App.Placement(App.Vector(0, 0, -11.1), App.Rotation())
add_polygon(sketch16, [(42, 29), (42, 19), (48, 19), (48, 29)])  # lines 0-3
sketch16.addConstraint(Sketcher.Constraint("Vertical", 0))
sketch16.addConstraint(Sketcher.Constraint("Horizontal", 1))
sketch16.addConstraint(Sketcher.Constraint("Vertical", 2))
sketch16.addConstraint(Sketcher.Constraint("Horizontal", 3))
sketch16.addConstraint(Sketcher.Constraint("DistanceX", 1, 1, 1, 2, 6.0))
sketch16.addConstraint(Sketcher.Constraint("DistanceY", 0, 2, 0, 1, 10.0))
sketch16.addConstraint(Sketcher.Constraint("DistanceY", -1, 1, 0, 2, 19.0))
sketch16.addConstraint(Sketcher.Constraint("DistanceX", -1, 1, 0, 2, 41.7))
sketch16.setExpression("Constraints[8]", "Params.sketch16_width")
sketch16.setExpression("Constraints[9]", "Params.sketch16_height")
pad6 = body.newObject("PartDesign::Pad", "Pad005")
pad6.Profile = sketch16
pad6.setExpression("Length", "Params.pad6_length")

# Sketch on XY plane
sketch17 = body.newObject("Sketcher::SketchObject", "Sketch016")
sketch17.AttachmentSupport = (doc.getObject("XY_Plane"), [""])
sketch17.MapMode = "FlatFace"
sketch17.AttachmentOffset = App.Placement(App.Vector(0, 0, -4.5), App.Rotation())
add_polygon(sketch17, [(46.2, 21.8), (46.2, 22.4), (47.7, 22.4), (47.7, 25.6), (46.2, 25.6), (46.2, 26.2), (43.1, 26.2), (43.1, 21.8)])  # lines 0-7
sketch17.addConstraint(Sketcher.Constraint("Vertical", 0))
sketch17.addConstraint(Sketcher.Constraint("Horizontal", 1))
sketch17.addConstraint(Sketcher.Constraint("Vertical", 2))
sketch17.addConstraint(Sketcher.Constraint("Horizontal", 3))
sketch17.addConstraint(Sketcher.Constraint("Vertical", 4))
sketch17.addConstraint(Sketcher.Constraint("Horizontal", 5))
sketch17.addConstraint(Sketcher.Constraint("Vertical", 6))
sketch17.addConstraint(Sketcher.Constraint("Horizontal", 7))
sketch17.addConstraint(Sketcher.Constraint("Vertical", 0, 2, 3, 2))
sketch17.addConstraint(Sketcher.Constraint("Equal", 0, 4))
sketch17.addConstraint(Sketcher.Constraint("DistanceX", 5, 2, 5, 1, 3.1))
sketch17.addConstraint(Sketcher.Constraint("DistanceY", 0, 1, 0, 2, 0.6))
sketch17.addConstraint(Sketcher.Constraint("DistanceY", 2, 1, 2, 2, 3.2))
sketch17.addConstraint(Sketcher.Constraint("DistanceX", 1, 1, 1, 2, 1.45))
sketch17.addConstraint(Sketcher.Constraint("DistanceY", -1, 1, 0, 2, 22.4))
sketch17.addConstraint(Sketcher.Constraint("DistanceX", -1, 1, 1, 2, 47.7))
sketch17.setExpression("Constraints[18]", "Params.sketch17_width")
sketch17.setExpression("Constraints[19]", "Params.sketch17_height")
sketch17.setExpression("Constraints[20]", "Params.sketch17_height2")
sketch17.setExpression("Constraints[21]", "Params.sketch17_width2")
pocket11 = body.newObject("PartDesign::Pocket", "Pocket010")
pocket11.Profile = sketch17
pocket11.setExpression("Length", "Params.pocket11_length")

# Sketch on YZ plane
sketch18 = body.newObject("Sketcher::SketchObject", "Sketch017")
sketch18.AttachmentSupport = (doc.getObject("YZ_Plane"), [""])
sketch18.MapMode = "FlatFace"
sketch18.AttachmentOffset = App.Placement(App.Vector(0, 0, 47.7), App.Rotation())
add_polygon(sketch18, [(25.6, -5.8), (22.4, -5.8), (22.4, -25), (25.6, -25)])  # lines 0-3
sketch18.addConstraint(Sketcher.Constraint("Horizontal", 0))
sketch18.addConstraint(Sketcher.Constraint("Vertical", 1))
sketch18.addConstraint(Sketcher.Constraint("Horizontal", 2))
sketch18.addConstraint(Sketcher.Constraint("Vertical", 3))
sketch18.addConstraint(Sketcher.Constraint("DistanceX", 0, 2, 0, 1, 3.2))
sketch18.addConstraint(Sketcher.Constraint("DistanceY", 1, 2, 1, 1, 19.2))
sketch18.addConstraint(Sketcher.Constraint("DistanceY", 1, 2, -1, 1, 25.0))
sketch18.addConstraint(Sketcher.Constraint("DistanceX", -1, 1, 0, 2, 22.4))
sketch18.setExpression("Constraints[8]", "Params.sketch18_width")
sketch18.setExpression("Constraints[9]", "Params.sketch18_height")
pocket12 = body.newObject("PartDesign::Pocket", "Pocket011")
pocket12.Profile = sketch18
pocket12.setExpression("Length", "Params.pocket12_length")

# Sketch on XY plane
sketch19 = body.newObject("Sketcher::SketchObject", "Sketch018")
sketch19.AttachmentSupport = (doc.getObject("XY_Plane"), [""])
sketch19.MapMode = "FlatFace"
sketch19.AttachmentOffset = App.Placement(App.Vector(0, 0, 25), App.Rotation())
sketch19.addGeometry(Part.Circle(App.Vector(-29, 10, 0), App.Vector(0, 0, 1), 1.6), False)
sketch19.addGeometry(Part.Circle(App.Vector(29, 10, 0), App.Vector(0, 0, 1), 1.6), False)
sketch19.addConstraint(Sketcher.Constraint("Equal", 0, 1))
sketch19.addConstraint(Sketcher.Constraint("Symmetric", 0, 3, 1, 3, -2))
sketch19.addConstraint(Sketcher.Constraint("Diameter", 0, 3.2))
sketch19.addConstraint(Sketcher.Constraint("DistanceX", 0, 3, -1, 1, 29.0))
sketch19.addConstraint(Sketcher.Constraint("DistanceY", -1, 1, 0, 3, 10.0))
sketch19.setExpression("Constraints[2]", "Params.sketch19_diameter")
pocket13 = body.newObject("PartDesign::Pocket", "Pocket012")
pocket13.Profile = sketch19
pocket13.Type = "ThroughAll"

# Sketch on XY plane
sketch20 = body.newObject("Sketcher::SketchObject", "Sketch019")
sketch20.AttachmentSupport = (doc.getObject("XY_Plane"), [""])
sketch20.MapMode = "FlatFace"
sketch20.AttachmentOffset = App.Placement(App.Vector(0, 0, 25), App.Rotation())
add_polygon(sketch20, [(26.2, 11.6), (26.2, 8.4), (29, 6.8), (31.8, 8.4), (31.8, 11.6), (29, 13.2)])  # lines 0-5
add_polygon(sketch20, [(-31.8, 11.6), (-31.8, 8.4), (-29, 6.8), (-26.2, 8.4), (-26.2, 11.6), (-29, 13.2)])  # lines 6-11
sketch20.addConstraint(Sketcher.Constraint("Vertical", 0))
sketch20.addConstraint(Sketcher.Constraint("Vertical", 3))
sketch20.addConstraint(Sketcher.Constraint("Vertical", 6))
sketch20.addConstraint(Sketcher.Constraint("Vertical", 9))
sketch20.addConstraint(Sketcher.Constraint("Symmetric", 2, 2, 6, 2, -2))
sketch20.addConstraint(Sketcher.Constraint("Symmetric", 1, 2, 7, 2, -2))
sketch20.addConstraint(Sketcher.Constraint("Symmetric", 0, 2, 8, 2, -2))
sketch20.addConstraint(Sketcher.Constraint("Symmetric", 4, 2, 10, 2, -2))
sketch20.addConstraint(Sketcher.Constraint("Parallel", 1, 4))
sketch20.addConstraint(Sketcher.Constraint("Parallel", 2, 5))
sketch20.addConstraint(Sketcher.Constraint("Parallel", 4, 7))
sketch20.addConstraint(Sketcher.Constraint("Parallel", 7, 10))
sketch20.addConstraint(Sketcher.Constraint("Parallel", 8, 11))
sketch20.addConstraint(Sketcher.Constraint("Horizontal", 0, 2, 2, 2))
sketch20.addConstraint(Sketcher.Constraint("Horizontal", 3, 2, 5, 2))
sketch20.addConstraint(Sketcher.Constraint("Angle", 1, Q("-30 deg")))
sketch20.addConstraint(Sketcher.Constraint("DistanceX", -1, 1, 1, 2, 29.0))
sketch20.addConstraint(Sketcher.Constraint("DistanceY", 0, 2, 0, 1, 3.25))
sketch20.addConstraint(Sketcher.Constraint("DistanceY", 1, 2, 4, 2, 6.5))
sketch20.addConstraint(Sketcher.Constraint("DistanceY", -1, 1, 1, 2, 6.75))
sketch20.setExpression("Constraints[29]", "Params.sketch20_height")
pocket14 = body.newObject("PartDesign::Pocket", "Pocket013")
pocket14.Profile = sketch20
pocket14.setExpression("Length", "Params.pocket14_length")

# Sketch on XY plane
sketch21 = body.newObject("Sketcher::SketchObject", "Sketch020")
sketch21.AttachmentSupport = (doc.getObject("XY_Plane"), [""])
sketch21.MapMode = "FlatFace"
sketch21.AttachmentOffset = App.Placement(App.Vector(0, 0, -30), App.Rotation())
sketch21.addGeometry(Part.Circle(App.Vector(29, 10, 0), App.Vector(0, 0, 1), 3.1), False)
sketch21.addGeometry(Part.Circle(App.Vector(-29, 10, 0), App.Vector(0, 0, 1), 3.1), False)
sketch21.addConstraint(Sketcher.Constraint("Equal", 0, 1))
sketch21.addConstraint(Sketcher.Constraint("Symmetric", 0, 3, 1, 3, -2))
sketch21.addConstraint(Sketcher.Constraint("Diameter", 0, 6.3))
sketch21.addConstraint(Sketcher.Constraint("DistanceX", -1, 1, 0, 3, 29.0))
sketch21.addConstraint(Sketcher.Constraint("DistanceY", -1, 1, 0, 3, 10.0))
sketch21.setExpression("Constraints[2]", "Params.sketch21_diameter")
pocket15 = body.newObject("PartDesign::Pocket", "Pocket014")
pocket15.Profile = sketch21
pocket15.setExpression("Length", "Params.pocket15_length")
pocket15.Reversed = True

# Sketch on XZ plane
sketch22 = body.newObject("Sketcher::SketchObject", "Sketch021")
sketch22.AttachmentSupport = (doc.getObject("XZ_Plane"), [""])
sketch22.MapMode = "FlatFace"
add_polygon(sketch22, [(-53, 51), (-53, -51), (53, -51), (53, 51)])  # lines 0-3
sketch22.addConstraint(Sketcher.Constraint("Vertical", 0))
sketch22.addConstraint(Sketcher.Constraint("Horizontal", 1))
sketch22.addConstraint(Sketcher.Constraint("Vertical", 2))
sketch22.addConstraint(Sketcher.Constraint("Horizontal", 3))
sketch22.addConstraint(Sketcher.Constraint("Symmetric", 0, 2, 2, 2, -1, 1))
sketch22.addConstraint(Sketcher.Constraint("DistanceX", 1, 1, 1, 2, 105.773903))
sketch22.addConstraint(Sketcher.Constraint("DistanceY", 0, 2, 0, 1, 101.810214))
pocket16 = body.newObject("PartDesign::Pocket", "Pocket015")
pocket16.Profile = sketch22
pocket16.setExpression("Length", "Params.pocket16_length")
doc.recompute()

chamfer6 = body.newObject("PartDesign::Chamfer", "Chamfer005")
chamfer6.Base = (pocket16, edges_at(pocket16, [(0, 37, 25)]))
chamfer6.setExpression("Size", "Params.chamfer6_size")

# Sketch on XZ plane
sketch23 = body.newObject("Sketcher::SketchObject", "Sketch022")
sketch23.AttachmentSupport = (doc.getObject("XZ_Plane"), [""])
sketch23.MapMode = "FlatFace"
sketch23.AttachmentOffset = App.Placement(App.Vector(0, 0, -47), App.Rotation())
add_polygon(sketch23, [(33, -25), (28, -30), (-28, -30), (-33, -25)])  # lines 0-3
sketch23.addConstraint(Sketcher.Constraint("Horizontal", 1))
sketch23.addConstraint(Sketcher.Constraint("Horizontal", 3))
sketch23.addConstraint(Sketcher.Constraint("Perpendicular", 0, 2))
sketch23.addConstraint(Sketcher.Constraint("Equal", 0, 2))
sketch23.addConstraint(Sketcher.Constraint("DistanceX", 1, 2, 1, 1, 55.4))
sketch23.addConstraint(Sketcher.Constraint("DistanceX", 3, 1, 3, 2, 65.4))
sketch23.addConstraint(Sketcher.Constraint("DistanceY", 0, 2, -1, 1, 30.0))
sketch23.addConstraint(Sketcher.Constraint("DistanceX", -1, 1, 0, 2, 27.7))
sketch23.setExpression("Constraints[8]", "Params.sketch23_width")
sketch23.setExpression("Constraints[9]", "Params.sketch23_width2")
pocket17 = body.newObject("PartDesign::Pocket", "Pocket016")
pocket17.Profile = sketch23
pocket17.Type = "ThroughAll"
pocket17.Reversed = True

# Sketch on XZ plane
sketch24 = body.newObject("Sketcher::SketchObject", "Sketch023")
sketch24.AttachmentSupport = (doc.getObject("XZ_Plane"), [""])
sketch24.MapMode = "FlatFace"
sketch24.AttachmentOffset = App.Placement(App.Vector(0, 0, -29), App.Rotation())
add_polygon(sketch24, [(32.7, -11.1), (41.7, -11.1), (41.7, -4.5), (47.7, -4.5), (47.7, -25), (32.7, -25)])  # lines 0-5
sketch24.addGeometry(Part.Circle(App.Vector(37.7, -18, 0), App.Vector(0, 0, 1), 3.5), False)  # 6
sketch24.addConstraint(Sketcher.Constraint("Horizontal", 0))
sketch24.addConstraint(Sketcher.Constraint("Vertical", 1))
sketch24.addConstraint(Sketcher.Constraint("Horizontal", 2))
sketch24.addConstraint(Sketcher.Constraint("Vertical", 3))
sketch24.addConstraint(Sketcher.Constraint("Horizontal", 4))
sketch24.addConstraint(Sketcher.Constraint("Vertical", 5))
sketch24.addConstraint(Sketcher.Constraint("Diameter", 6, 7.0))
sketch24.addConstraint(Sketcher.Constraint("DistanceX", 0, 1, 0, 2, 9.0))
sketch24.addConstraint(Sketcher.Constraint("DistanceX", 2, 1, 2, 2, 6.0))
sketch24.addConstraint(Sketcher.Constraint("DistanceY", 1, 1, 1, 2, 6.6))
sketch24.addConstraint(Sketcher.Constraint("DistanceY", 3, 2, 3, 1, 20.5))
sketch24.addConstraint(Sketcher.Constraint("DistanceY", 6, 3, -1, 1, 18.0))
sketch24.addConstraint(Sketcher.Constraint("DistanceY", 3, 2, -1, 1, 25.0))
sketch24.addConstraint(Sketcher.Constraint("DistanceX", 6, 3, 0, 2, 4.0))
sketch24.addConstraint(Sketcher.Constraint("DistanceX", -1, 1, 6, 3, 37.7))
sketch24.setExpression("Constraints[12]", "Params.sketch24_diameter")
sketch24.setExpression("Constraints[13]", "Params.sketch24_width")
sketch24.setExpression("Constraints[14]", "Params.sketch24_width2")
sketch24.setExpression("Constraints[15]", "Params.sketch24_height")
sketch24.setExpression("Constraints[16]", "Params.sketch24_height2")
pad7 = body.newObject("PartDesign::Pad", "Pad006")
pad7.Profile = sketch24
pad7.setExpression("Length", "Params.pad7_length")
pad7.Reversed = True

doc.recompute()
